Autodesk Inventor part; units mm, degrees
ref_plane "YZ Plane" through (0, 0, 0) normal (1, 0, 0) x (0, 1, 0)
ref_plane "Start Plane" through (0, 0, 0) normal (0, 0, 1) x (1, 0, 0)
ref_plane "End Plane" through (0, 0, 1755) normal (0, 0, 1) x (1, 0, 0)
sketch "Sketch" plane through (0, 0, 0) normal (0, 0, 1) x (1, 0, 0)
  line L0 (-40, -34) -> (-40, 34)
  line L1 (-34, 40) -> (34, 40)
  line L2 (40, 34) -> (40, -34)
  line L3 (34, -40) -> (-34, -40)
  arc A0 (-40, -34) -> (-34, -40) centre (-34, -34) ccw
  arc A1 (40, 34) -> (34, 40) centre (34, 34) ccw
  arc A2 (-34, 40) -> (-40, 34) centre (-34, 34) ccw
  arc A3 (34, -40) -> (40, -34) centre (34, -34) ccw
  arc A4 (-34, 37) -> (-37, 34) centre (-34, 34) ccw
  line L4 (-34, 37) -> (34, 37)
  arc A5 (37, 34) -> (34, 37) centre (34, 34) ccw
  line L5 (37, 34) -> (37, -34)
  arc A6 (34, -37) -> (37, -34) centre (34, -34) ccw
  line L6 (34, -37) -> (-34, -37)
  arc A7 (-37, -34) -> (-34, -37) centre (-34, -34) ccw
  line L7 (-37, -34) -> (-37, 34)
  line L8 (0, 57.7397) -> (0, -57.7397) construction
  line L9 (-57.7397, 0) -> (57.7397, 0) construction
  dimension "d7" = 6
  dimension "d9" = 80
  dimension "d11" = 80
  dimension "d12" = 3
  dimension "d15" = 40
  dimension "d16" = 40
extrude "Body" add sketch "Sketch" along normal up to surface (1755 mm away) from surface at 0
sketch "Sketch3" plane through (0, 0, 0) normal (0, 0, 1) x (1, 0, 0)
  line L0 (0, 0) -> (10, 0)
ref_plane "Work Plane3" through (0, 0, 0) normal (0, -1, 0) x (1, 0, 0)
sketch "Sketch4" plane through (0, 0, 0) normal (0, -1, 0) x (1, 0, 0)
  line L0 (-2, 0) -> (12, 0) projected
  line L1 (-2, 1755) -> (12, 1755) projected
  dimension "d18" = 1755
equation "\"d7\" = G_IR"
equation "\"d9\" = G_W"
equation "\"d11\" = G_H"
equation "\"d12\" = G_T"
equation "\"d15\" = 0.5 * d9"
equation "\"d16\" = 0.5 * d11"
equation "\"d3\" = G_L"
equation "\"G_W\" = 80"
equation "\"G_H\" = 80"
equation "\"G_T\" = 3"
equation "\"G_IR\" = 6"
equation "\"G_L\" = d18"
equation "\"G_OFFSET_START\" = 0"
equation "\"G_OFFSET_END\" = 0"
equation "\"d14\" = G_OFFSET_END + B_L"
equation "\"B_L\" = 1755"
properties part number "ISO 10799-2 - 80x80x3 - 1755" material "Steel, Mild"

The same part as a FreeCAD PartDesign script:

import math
import FreeCAD as App
import Part
import Sketcher

V = App.Vector
Q = App.Units.Quantity

doc = App.newDocument("Part")
body = doc.addObject("PartDesign::Body", "Body")

# Sketch on XY plane
sketch1 = body.newObject("Sketcher::SketchObject", "Sketch")
sketch1.AttachmentSupport = (doc.getObject("XY_Plane"), [""])
sketch1.MapMode = "FlatFace"
sketch1.addGeometry(Part.LineSegment(V(-40, 34, 0), V(-40, -34, 0)), False)
sketch1.addGeometry(Part.ArcOfCircle(Part.Circle(V(-34, -34, 0), V(0, 0, 1), 6), math.radians(180), math.radians(270)), False)
sketch1.addGeometry(Part.LineSegment(V(-34, -40, 0), V(34, -40, 0)), False)
sketch1.addGeometry(Part.ArcOfCircle(Part.Circle(V(34, -34, 0), V(0, 0, 1), 6), math.radians(-90), math.radians(0)), False)
sketch1.addGeometry(Part.LineSegment(V(40, -34, 0), V(40, 34, 0)), False)
sketch1.addGeometry(Part.ArcOfCircle(Part.Circle(V(34, 34, 0), V(0, 0, 1), 6), math.radians(0), math.radians(90)), False)
sketch1.addGeometry(Part.LineSegment(V(34, 40, 0), V(-34, 40, 0)), False)
sketch1.addGeometry(Part.ArcOfCircle(Part.Circle(V(-34, 34, 0), V(0, 0, 1), 6), math.radians(90), math.radians(180)), False)
sketch1.addGeometry(Part.ArcOfCircle(Part.Circle(V(-34, 34, 0), V(0, 0, 1), 3), math.radians(90), math.radians(180)), False)
sketch1.addGeometry(Part.LineSegment(V(-34, 37, 0), V(34, 37, 0)), False)
sketch1.addGeometry(Part.ArcOfCircle(Part.Circle(V(34, 34, 0), V(0, 0, 1), 3), math.radians(0), math.radians(90)), False)
sketch1.addGeometry(Part.LineSegment(V(37, 34, 0), V(37, -34, 0)), False)
sketch1.addGeometry(Part.ArcOfCircle(Part.Circle(V(34, -34, 0), V(0, 0, 1), 3), math.radians(-90), math.radians(0)), False)
sketch1.addGeometry(Part.LineSegment(V(34, -37, 0), V(-34, -37, 0)), False)
sketch1.addGeometry(Part.ArcOfCircle(Part.Circle(V(-34, -34, 0), V(0, 0, 1), 3), math.radians(180), math.radians(270)), False)
sketch1.addGeometry(Part.LineSegment(V(-37, -34, 0), V(-37, 34, 0)), False)
sketch1.addConstraint(Sketcher.Constraint("Tangent", 0, 2, 1, 1))
sketch1.addConstraint(Sketcher.Constraint("Tangent", 1, 2, 2, 1))
sketch1.addConstraint(Sketcher.Constraint("Tangent", 2, 2, 3, 1))
sketch1.addConstraint(Sketcher.Constraint("Tangent", 3, 2, 4, 1))
sketch1.addConstraint(Sketcher.Constraint("Tangent", 4, 2, 5, 1))
sketch1.addConstraint(Sketcher.Constraint("Tangent", 5, 2, 6, 1))
sketch1.addConstraint(Sketcher.Constraint("Tangent", 6, 2, 7, 1))
sketch1.addConstraint(Sketcher.Constraint("Tangent", 7, 2, 0, 1))
sketch1.addConstraint(Sketcher.Constraint("Tangent", 8, 1, 9, 1))
sketch1.addConstraint(Sketcher.Constraint("Tangent", 9, 2, 10, 2))
sketch1.addConstraint(Sketcher.Constraint("Tangent", 10, 1, 11, 1))
sketch1.addConstraint(Sketcher.Constraint("Tangent", 11, 2, 12, 2))
sketch1.addConstraint(Sketcher.Constraint("Tangent", 12, 1, 13, 1))
sketch1.addConstraint(Sketcher.Constraint("Tangent", 13, 2, 14, 2))
sketch1.addConstraint(Sketcher.Constraint("Tangent", 14, 1, 15, 1))
sketch1.addConstraint(Sketcher.Constraint("Tangent", 15, 2, 8, 2))
sketch1.addConstraint(Sketcher.Constraint("Vertical", 0))
sketch1.addConstraint(Sketcher.Constraint("Horizontal", 2))
sketch1.addConstraint(Sketcher.Constraint("Vertical", 4))
sketch1.addConstraint(Sketcher.Constraint("Horizontal", 6))
sketch1.addConstraint(Sketcher.Constraint("Horizontal", 9))
sketch1.addConstraint(Sketcher.Constraint("Vertical", 11))
sketch1.addConstraint(Sketcher.Constraint("Horizontal", 13))
sketch1.addConstraint(Sketcher.Constraint("Vertical", 15))
sketch1.addConstraint(Sketcher.Constraint("Coincident", 8, 3, 7, 3))
sketch1.addConstraint(Sketcher.Constraint("Coincident", 10, 3, 5, 3))
sketch1.addConstraint(Sketcher.Constraint("Coincident", 12, 3, 3, 3))
sketch1.addConstraint(Sketcher.Constraint("Equal", 1, 3))
sketch1.addConstraint(Sketcher.Constraint("Equal", 3, 5))
sketch1.addConstraint(Sketcher.Constraint("Equal", 5, 7))
sketch1.addConstraint(Sketcher.Constraint("Equal", 12, 14))
sketch1.addConstraint(Sketcher.Constraint("Symmetric", 1, 3, 5, 3, -1, 1))
sketch1.addConstraint(Sketcher.Constraint("Equal", 13, 0))
sketch1.addConstraint(Sketcher.Constraint("Radius", 1, Q("6 mm")))
sketch1.addConstraint(Sketcher.Constraint("Radius", 8, Q("3 mm")))
sketch1.addConstraint(Sketcher.Constraint("DistanceX", 0, 2, -1, 1, Q("40 mm")))
pad1 = body.newObject("PartDesign::Pad", "Pad")
pad1.Profile = sketch1
pad1.Length = 1755

doc.recompute()
